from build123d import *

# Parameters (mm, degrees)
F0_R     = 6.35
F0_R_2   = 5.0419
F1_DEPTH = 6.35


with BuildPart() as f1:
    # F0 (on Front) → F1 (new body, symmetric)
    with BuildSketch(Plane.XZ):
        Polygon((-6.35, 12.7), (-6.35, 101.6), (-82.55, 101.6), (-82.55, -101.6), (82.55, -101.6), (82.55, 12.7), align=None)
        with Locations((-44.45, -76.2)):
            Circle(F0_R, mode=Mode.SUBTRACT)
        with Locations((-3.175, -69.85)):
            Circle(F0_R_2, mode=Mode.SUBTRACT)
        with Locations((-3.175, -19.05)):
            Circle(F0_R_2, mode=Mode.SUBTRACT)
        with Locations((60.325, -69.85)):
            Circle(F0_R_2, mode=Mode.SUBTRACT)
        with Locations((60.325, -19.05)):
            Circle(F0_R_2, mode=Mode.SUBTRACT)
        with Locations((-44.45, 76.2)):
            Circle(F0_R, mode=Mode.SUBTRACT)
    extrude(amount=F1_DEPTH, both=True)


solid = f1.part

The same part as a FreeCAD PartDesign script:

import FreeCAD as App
import Part
import Sketcher
Q = App.Units.Quantity

doc = App.newDocument("Part")
body = doc.addObject("PartDesign::Body", "Body")

sketch1 = doc.addObject("Sketcher::SketchObject", "Sketch")
body.addObject(sketch1)
sketch1.AttachmentSupport = (doc.XZ_Plane, [""])
sketch1.MapMode = "FlatFace"
sketch1.addGeometry(Part.LineSegment(App.Vector(-6, 13, 0), App.Vector(-6, 102, 0)), False)
sketch1.addGeometry(Part.LineSegment(App.Vector(-6, 102, 0), App.Vector(-83, 102, 0)), False)
sketch1.addGeometry(Part.LineSegment(App.Vector(-83, 102, 0), App.Vector(-83, -102, 0)), False)
sketch1.addGeometry(Part.LineSegment(App.Vector(-83, -102, 0), App.Vector(83, -102, 0)), False)
sketch1.addGeometry(Part.LineSegment(App.Vector(83, -102, 0), App.Vector(83, 13, 0)), False)
sketch1.addGeometry(Part.LineSegment(App.Vector(83, 13, 0), App.Vector(-6, 13, 0)), False)
sketch1.addGeometry(Part.Circle(App.Vector(-44, -76, 0), App.Vector(0, 0, 1), 6), False)
sketch1.addGeometry(Part.Circle(App.Vector(-3, -70, 0), App.Vector(0, 0, 1), 5), False)
sketch1.addGeometry(Part.Circle(App.Vector(-3, -19, 0), App.Vector(0, 0, 1), 5), False)
sketch1.addGeometry(Part.Circle(App.Vector(60, -70, 0), App.Vector(0, 0, 1), 5), False)
sketch1.addGeometry(Part.Circle(App.Vector(60, -19, 0), App.Vector(0, 0, 1), 5), False)
sketch1.addGeometry(Part.Circle(App.Vector(-44, 76, 0), App.Vector(0, 0, 1), 6), False)
sketch1.addConstraint(Sketcher.Constraint("Coincident", 0, 2, 1, 1))
sketch1.addConstraint(Sketcher.Constraint("Coincident", 1, 2, 2, 1))
sketch1.addConstraint(Sketcher.Constraint("Coincident", 2, 2, 3, 1))
sketch1.addConstraint(Sketcher.Constraint("Coincident", 3, 2, 4, 1))
sketch1.addConstraint(Sketcher.Constraint("Coincident", 4, 2, 5, 1))
sketch1.addConstraint(Sketcher.Constraint("Coincident", 5, 2, 0, 1))
sketch1.addConstraint(Sketcher.Constraint("Vertical", 0))
sketch1.addConstraint(Sketcher.Constraint("Horizontal", 1))
sketch1.addConstraint(Sketcher.Constraint("Vertical", 2))
sketch1.addConstraint(Sketcher.Constraint("Horizontal", 3))
sketch1.addConstraint(Sketcher.Constraint("Vertical", 4))
sketch1.addConstraint(Sketcher.Constraint("Horizontal", 5))
sketch1.addConstraint(Sketcher.Constraint("Equal", 7, 8))
sketch1.addConstraint(Sketcher.Constraint("Equal", 8, 9))
sketch1.addConstraint(Sketcher.Constraint("Equal", 9, 10))
sketch1.addConstraint(Sketcher.Constraint("Equal", 6, 11))
sketch1.addConstraint(Sketcher.Constraint("Symmetric", 1, 2, 3, 2, -1, 1))
sketch1.addConstraint(Sketcher.Constraint("Symmetric", 6, 3, 11, 3, -1))
sketch1.addConstraint(Sketcher.Constraint("Horizontal", 7, 3, 9, 3))
sketch1.addConstraint(Sketcher.Constraint("Horizontal", 8, 3, 10, 3))
sketch1.addConstraint(Sketcher.Constraint("Vertical", 7, 3, 8, 3))
sketch1.addConstraint(Sketcher.Constraint("Vertical", 9, 3, 10, 3))
sketch1.addConstraint(Sketcher.Constraint("Equal", 5, 0))
sketch1.addConstraint(Sketcher.Constraint("Diameter", 6, Q("0.5 in")))
sketch1.addConstraint(Sketcher.Constraint("DistanceX", 1, 2, 1, 1, Q("3 in")))
sketch1.addConstraint(Sketcher.Constraint("DistanceY", 2, 2, 2, 1, Q("8 in")))
sketch1.addConstraint(Sketcher.Constraint("Diameter", 7, Q("0.397 in")))
sketch1.addConstraint(Sketcher.Constraint("DistanceX", 3, 1, 3, 2, Q("6.5 in")))
sketch1.addConstraint(Sketcher.Constraint("DistanceY", 6, 3, -1, 1, Q("3 in")))
sketch1.addConstraint(Sketcher.Constraint("DistanceY", 7, 3, 8, 3, Q("2 in")))
sketch1.addConstraint(Sketcher.Constraint("DistanceX", 6, 3, 3, 2, Q("5 in")))
sketch1.addConstraint(Sketcher.Constraint("DistanceX", 7, 3, 9, 3, Q("2.5 in")))
sketch1.addConstraint(Sketcher.Constraint("DistanceY", 7, 3, -1, 1, Q("2.75 in")))
sketch1.addConstraint(Sketcher.Constraint("DistanceX", 7, 3, -1, 1, Q("0.125 in")))
pad1 = doc.addObject("PartDesign::Pad", "Pad")
body.addObject(pad1)
pad1.Profile = sketch1
pad1.Length = Q("0.5 in")
pad1.Midplane = True

doc.recompute()
